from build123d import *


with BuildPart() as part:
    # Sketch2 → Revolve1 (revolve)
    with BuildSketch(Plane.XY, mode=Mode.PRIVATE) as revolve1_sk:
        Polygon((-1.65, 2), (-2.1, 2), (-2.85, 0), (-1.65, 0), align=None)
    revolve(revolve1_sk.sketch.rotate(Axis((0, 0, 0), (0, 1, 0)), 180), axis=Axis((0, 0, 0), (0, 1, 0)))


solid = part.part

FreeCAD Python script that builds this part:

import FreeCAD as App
import Part
import Sketcher

V = App.Vector

doc = App.newDocument("Part")
body = doc.addObject("PartDesign::Body", "Body")

sketch1 = doc.addObject("Sketcher::SketchObject", "Sketch")
body.addObject(sketch1)
sketch1.AttachmentSupport = (doc.XY_Plane, [""])
sketch1.MapMode = "FlatFace"
sketch1.addGeometry(Part.LineSegment(V(-1.65, 2, 0), V(-2.1, 2, 0)), False)
sketch1.addGeometry(Part.LineSegment(V(-2.1, 2, 0), V(-2.85, 0, 0)), False)
sketch1.addGeometry(Part.LineSegment(V(-2.85, 0, 0), V(-1.65, 0, 0)), False)
sketch1.addGeometry(Part.LineSegment(V(-1.65, 0, 0), V(-1.65, 2, 0)), False)
sketch1.addConstraint(Sketcher.Constraint("Coincident", 0, 2, 1, 1))
sketch1.addConstraint(Sketcher.Constraint("Coincident", 1, 2, 2, 1))
sketch1.addConstraint(Sketcher.Constraint("Coincident", 2, 2, 3, 1))
sketch1.addConstraint(Sketcher.Constraint("Coincident", 3, 2, 0, 1))
sketch1.addConstraint(Sketcher.Constraint("Horizontal", 0))
sketch1.addConstraint(Sketcher.Constraint("Horizontal", 2))
sketch1.addConstraint(Sketcher.Constraint("Vertical", 3))
sketch1.addConstraint(Sketcher.Constraint("PointOnObject", 1, 2, -1))
sketch1.addConstraint(Sketcher.Constraint("DistanceY", 3, 1, 3, 2, 2.0))
sketch1.addConstraint(Sketcher.Constraint("DistanceX", 2, 1, 2, 2, 1.2))
sketch1.addConstraint(Sketcher.Constraint("DistanceX", 0, 2, 0, 1, 0.45))
sketch1.addConstraint(Sketcher.Constraint("DistanceX", 0, 2, -1, 1, 2.1))
revolution = doc.addObject("PartDesign::Revolution", "Revolution")
body.addObject(revolution)
revolution.Profile = sketch1
revolution.ReferenceAxis = (sketch1, ["V_Axis"])
revolution.Angle = 360

doc.recompute()
